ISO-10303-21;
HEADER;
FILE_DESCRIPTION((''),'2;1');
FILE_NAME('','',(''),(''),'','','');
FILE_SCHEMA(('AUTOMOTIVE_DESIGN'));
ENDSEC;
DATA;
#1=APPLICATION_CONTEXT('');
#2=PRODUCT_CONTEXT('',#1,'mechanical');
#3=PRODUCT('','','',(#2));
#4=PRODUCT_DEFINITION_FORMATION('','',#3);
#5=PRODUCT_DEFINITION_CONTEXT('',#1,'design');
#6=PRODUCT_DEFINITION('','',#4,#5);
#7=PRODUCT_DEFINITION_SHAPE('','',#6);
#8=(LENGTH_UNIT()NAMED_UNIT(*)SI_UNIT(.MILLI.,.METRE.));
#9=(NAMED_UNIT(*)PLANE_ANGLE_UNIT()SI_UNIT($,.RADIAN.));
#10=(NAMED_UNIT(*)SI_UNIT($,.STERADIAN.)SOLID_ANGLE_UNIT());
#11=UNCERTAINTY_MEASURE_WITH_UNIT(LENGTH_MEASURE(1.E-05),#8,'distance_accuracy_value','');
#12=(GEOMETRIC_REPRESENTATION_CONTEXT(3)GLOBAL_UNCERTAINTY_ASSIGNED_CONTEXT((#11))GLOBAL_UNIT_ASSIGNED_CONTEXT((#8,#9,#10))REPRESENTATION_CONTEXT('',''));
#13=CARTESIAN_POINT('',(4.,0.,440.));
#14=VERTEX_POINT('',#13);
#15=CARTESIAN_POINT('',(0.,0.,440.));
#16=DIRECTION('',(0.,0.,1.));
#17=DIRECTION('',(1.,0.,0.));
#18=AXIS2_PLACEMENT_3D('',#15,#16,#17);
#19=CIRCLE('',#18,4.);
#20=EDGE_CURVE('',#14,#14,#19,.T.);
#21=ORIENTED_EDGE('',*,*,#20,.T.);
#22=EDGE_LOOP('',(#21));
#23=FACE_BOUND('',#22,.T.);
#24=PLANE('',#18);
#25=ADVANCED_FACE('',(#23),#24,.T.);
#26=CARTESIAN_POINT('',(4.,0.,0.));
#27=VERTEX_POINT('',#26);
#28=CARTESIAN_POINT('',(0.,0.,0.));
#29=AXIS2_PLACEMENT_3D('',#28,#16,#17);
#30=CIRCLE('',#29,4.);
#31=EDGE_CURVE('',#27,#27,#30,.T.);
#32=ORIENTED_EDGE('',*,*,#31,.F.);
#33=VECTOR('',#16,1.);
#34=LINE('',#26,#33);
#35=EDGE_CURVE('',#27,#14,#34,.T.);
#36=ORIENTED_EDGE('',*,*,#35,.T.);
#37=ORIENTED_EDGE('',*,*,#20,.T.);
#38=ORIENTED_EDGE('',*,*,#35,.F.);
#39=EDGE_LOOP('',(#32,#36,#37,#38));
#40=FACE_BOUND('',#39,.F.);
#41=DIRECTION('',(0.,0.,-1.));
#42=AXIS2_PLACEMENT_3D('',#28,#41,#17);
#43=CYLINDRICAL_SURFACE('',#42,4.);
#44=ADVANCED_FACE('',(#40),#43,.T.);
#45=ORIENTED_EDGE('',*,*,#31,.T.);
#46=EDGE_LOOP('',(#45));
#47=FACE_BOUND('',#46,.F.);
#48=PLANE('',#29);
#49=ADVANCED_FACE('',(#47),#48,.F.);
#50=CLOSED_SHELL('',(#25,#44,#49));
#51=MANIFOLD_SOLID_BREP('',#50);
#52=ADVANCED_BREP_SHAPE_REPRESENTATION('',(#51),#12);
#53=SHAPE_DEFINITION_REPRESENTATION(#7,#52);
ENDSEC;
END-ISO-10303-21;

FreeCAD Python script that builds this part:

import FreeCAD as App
import Part
import Sketcher
from FreeCAD import Vector
Q = App.Units.Quantity

doc = App.newDocument("Part")
body = doc.addObject("PartDesign::Body", "Body")

# Sketch on XY plane
sketch1 = doc.addObject("Sketcher::SketchObject", "Sketch")
body.addObject(sketch1)
sketch1.AttachmentSupport = (doc.XY_Plane, [""])
sketch1.MapMode = "FlatFace"
sketch1.addGeometry(Part.Circle(Vector(0, 0, 0), Vector(0, 0, 1), 4), False)
sketch1.addConstraint([
    Sketcher.Constraint("Coincident", 0, 3, -1, 1),
    Sketcher.Constraint("Diameter", 0, Q("8 mm")),
])
pad1 = doc.addObject("PartDesign::Pad", "Pad")
body.addObject(pad1)
pad1.Profile = sketch1
pad1.Length = 440

doc.recompute()
